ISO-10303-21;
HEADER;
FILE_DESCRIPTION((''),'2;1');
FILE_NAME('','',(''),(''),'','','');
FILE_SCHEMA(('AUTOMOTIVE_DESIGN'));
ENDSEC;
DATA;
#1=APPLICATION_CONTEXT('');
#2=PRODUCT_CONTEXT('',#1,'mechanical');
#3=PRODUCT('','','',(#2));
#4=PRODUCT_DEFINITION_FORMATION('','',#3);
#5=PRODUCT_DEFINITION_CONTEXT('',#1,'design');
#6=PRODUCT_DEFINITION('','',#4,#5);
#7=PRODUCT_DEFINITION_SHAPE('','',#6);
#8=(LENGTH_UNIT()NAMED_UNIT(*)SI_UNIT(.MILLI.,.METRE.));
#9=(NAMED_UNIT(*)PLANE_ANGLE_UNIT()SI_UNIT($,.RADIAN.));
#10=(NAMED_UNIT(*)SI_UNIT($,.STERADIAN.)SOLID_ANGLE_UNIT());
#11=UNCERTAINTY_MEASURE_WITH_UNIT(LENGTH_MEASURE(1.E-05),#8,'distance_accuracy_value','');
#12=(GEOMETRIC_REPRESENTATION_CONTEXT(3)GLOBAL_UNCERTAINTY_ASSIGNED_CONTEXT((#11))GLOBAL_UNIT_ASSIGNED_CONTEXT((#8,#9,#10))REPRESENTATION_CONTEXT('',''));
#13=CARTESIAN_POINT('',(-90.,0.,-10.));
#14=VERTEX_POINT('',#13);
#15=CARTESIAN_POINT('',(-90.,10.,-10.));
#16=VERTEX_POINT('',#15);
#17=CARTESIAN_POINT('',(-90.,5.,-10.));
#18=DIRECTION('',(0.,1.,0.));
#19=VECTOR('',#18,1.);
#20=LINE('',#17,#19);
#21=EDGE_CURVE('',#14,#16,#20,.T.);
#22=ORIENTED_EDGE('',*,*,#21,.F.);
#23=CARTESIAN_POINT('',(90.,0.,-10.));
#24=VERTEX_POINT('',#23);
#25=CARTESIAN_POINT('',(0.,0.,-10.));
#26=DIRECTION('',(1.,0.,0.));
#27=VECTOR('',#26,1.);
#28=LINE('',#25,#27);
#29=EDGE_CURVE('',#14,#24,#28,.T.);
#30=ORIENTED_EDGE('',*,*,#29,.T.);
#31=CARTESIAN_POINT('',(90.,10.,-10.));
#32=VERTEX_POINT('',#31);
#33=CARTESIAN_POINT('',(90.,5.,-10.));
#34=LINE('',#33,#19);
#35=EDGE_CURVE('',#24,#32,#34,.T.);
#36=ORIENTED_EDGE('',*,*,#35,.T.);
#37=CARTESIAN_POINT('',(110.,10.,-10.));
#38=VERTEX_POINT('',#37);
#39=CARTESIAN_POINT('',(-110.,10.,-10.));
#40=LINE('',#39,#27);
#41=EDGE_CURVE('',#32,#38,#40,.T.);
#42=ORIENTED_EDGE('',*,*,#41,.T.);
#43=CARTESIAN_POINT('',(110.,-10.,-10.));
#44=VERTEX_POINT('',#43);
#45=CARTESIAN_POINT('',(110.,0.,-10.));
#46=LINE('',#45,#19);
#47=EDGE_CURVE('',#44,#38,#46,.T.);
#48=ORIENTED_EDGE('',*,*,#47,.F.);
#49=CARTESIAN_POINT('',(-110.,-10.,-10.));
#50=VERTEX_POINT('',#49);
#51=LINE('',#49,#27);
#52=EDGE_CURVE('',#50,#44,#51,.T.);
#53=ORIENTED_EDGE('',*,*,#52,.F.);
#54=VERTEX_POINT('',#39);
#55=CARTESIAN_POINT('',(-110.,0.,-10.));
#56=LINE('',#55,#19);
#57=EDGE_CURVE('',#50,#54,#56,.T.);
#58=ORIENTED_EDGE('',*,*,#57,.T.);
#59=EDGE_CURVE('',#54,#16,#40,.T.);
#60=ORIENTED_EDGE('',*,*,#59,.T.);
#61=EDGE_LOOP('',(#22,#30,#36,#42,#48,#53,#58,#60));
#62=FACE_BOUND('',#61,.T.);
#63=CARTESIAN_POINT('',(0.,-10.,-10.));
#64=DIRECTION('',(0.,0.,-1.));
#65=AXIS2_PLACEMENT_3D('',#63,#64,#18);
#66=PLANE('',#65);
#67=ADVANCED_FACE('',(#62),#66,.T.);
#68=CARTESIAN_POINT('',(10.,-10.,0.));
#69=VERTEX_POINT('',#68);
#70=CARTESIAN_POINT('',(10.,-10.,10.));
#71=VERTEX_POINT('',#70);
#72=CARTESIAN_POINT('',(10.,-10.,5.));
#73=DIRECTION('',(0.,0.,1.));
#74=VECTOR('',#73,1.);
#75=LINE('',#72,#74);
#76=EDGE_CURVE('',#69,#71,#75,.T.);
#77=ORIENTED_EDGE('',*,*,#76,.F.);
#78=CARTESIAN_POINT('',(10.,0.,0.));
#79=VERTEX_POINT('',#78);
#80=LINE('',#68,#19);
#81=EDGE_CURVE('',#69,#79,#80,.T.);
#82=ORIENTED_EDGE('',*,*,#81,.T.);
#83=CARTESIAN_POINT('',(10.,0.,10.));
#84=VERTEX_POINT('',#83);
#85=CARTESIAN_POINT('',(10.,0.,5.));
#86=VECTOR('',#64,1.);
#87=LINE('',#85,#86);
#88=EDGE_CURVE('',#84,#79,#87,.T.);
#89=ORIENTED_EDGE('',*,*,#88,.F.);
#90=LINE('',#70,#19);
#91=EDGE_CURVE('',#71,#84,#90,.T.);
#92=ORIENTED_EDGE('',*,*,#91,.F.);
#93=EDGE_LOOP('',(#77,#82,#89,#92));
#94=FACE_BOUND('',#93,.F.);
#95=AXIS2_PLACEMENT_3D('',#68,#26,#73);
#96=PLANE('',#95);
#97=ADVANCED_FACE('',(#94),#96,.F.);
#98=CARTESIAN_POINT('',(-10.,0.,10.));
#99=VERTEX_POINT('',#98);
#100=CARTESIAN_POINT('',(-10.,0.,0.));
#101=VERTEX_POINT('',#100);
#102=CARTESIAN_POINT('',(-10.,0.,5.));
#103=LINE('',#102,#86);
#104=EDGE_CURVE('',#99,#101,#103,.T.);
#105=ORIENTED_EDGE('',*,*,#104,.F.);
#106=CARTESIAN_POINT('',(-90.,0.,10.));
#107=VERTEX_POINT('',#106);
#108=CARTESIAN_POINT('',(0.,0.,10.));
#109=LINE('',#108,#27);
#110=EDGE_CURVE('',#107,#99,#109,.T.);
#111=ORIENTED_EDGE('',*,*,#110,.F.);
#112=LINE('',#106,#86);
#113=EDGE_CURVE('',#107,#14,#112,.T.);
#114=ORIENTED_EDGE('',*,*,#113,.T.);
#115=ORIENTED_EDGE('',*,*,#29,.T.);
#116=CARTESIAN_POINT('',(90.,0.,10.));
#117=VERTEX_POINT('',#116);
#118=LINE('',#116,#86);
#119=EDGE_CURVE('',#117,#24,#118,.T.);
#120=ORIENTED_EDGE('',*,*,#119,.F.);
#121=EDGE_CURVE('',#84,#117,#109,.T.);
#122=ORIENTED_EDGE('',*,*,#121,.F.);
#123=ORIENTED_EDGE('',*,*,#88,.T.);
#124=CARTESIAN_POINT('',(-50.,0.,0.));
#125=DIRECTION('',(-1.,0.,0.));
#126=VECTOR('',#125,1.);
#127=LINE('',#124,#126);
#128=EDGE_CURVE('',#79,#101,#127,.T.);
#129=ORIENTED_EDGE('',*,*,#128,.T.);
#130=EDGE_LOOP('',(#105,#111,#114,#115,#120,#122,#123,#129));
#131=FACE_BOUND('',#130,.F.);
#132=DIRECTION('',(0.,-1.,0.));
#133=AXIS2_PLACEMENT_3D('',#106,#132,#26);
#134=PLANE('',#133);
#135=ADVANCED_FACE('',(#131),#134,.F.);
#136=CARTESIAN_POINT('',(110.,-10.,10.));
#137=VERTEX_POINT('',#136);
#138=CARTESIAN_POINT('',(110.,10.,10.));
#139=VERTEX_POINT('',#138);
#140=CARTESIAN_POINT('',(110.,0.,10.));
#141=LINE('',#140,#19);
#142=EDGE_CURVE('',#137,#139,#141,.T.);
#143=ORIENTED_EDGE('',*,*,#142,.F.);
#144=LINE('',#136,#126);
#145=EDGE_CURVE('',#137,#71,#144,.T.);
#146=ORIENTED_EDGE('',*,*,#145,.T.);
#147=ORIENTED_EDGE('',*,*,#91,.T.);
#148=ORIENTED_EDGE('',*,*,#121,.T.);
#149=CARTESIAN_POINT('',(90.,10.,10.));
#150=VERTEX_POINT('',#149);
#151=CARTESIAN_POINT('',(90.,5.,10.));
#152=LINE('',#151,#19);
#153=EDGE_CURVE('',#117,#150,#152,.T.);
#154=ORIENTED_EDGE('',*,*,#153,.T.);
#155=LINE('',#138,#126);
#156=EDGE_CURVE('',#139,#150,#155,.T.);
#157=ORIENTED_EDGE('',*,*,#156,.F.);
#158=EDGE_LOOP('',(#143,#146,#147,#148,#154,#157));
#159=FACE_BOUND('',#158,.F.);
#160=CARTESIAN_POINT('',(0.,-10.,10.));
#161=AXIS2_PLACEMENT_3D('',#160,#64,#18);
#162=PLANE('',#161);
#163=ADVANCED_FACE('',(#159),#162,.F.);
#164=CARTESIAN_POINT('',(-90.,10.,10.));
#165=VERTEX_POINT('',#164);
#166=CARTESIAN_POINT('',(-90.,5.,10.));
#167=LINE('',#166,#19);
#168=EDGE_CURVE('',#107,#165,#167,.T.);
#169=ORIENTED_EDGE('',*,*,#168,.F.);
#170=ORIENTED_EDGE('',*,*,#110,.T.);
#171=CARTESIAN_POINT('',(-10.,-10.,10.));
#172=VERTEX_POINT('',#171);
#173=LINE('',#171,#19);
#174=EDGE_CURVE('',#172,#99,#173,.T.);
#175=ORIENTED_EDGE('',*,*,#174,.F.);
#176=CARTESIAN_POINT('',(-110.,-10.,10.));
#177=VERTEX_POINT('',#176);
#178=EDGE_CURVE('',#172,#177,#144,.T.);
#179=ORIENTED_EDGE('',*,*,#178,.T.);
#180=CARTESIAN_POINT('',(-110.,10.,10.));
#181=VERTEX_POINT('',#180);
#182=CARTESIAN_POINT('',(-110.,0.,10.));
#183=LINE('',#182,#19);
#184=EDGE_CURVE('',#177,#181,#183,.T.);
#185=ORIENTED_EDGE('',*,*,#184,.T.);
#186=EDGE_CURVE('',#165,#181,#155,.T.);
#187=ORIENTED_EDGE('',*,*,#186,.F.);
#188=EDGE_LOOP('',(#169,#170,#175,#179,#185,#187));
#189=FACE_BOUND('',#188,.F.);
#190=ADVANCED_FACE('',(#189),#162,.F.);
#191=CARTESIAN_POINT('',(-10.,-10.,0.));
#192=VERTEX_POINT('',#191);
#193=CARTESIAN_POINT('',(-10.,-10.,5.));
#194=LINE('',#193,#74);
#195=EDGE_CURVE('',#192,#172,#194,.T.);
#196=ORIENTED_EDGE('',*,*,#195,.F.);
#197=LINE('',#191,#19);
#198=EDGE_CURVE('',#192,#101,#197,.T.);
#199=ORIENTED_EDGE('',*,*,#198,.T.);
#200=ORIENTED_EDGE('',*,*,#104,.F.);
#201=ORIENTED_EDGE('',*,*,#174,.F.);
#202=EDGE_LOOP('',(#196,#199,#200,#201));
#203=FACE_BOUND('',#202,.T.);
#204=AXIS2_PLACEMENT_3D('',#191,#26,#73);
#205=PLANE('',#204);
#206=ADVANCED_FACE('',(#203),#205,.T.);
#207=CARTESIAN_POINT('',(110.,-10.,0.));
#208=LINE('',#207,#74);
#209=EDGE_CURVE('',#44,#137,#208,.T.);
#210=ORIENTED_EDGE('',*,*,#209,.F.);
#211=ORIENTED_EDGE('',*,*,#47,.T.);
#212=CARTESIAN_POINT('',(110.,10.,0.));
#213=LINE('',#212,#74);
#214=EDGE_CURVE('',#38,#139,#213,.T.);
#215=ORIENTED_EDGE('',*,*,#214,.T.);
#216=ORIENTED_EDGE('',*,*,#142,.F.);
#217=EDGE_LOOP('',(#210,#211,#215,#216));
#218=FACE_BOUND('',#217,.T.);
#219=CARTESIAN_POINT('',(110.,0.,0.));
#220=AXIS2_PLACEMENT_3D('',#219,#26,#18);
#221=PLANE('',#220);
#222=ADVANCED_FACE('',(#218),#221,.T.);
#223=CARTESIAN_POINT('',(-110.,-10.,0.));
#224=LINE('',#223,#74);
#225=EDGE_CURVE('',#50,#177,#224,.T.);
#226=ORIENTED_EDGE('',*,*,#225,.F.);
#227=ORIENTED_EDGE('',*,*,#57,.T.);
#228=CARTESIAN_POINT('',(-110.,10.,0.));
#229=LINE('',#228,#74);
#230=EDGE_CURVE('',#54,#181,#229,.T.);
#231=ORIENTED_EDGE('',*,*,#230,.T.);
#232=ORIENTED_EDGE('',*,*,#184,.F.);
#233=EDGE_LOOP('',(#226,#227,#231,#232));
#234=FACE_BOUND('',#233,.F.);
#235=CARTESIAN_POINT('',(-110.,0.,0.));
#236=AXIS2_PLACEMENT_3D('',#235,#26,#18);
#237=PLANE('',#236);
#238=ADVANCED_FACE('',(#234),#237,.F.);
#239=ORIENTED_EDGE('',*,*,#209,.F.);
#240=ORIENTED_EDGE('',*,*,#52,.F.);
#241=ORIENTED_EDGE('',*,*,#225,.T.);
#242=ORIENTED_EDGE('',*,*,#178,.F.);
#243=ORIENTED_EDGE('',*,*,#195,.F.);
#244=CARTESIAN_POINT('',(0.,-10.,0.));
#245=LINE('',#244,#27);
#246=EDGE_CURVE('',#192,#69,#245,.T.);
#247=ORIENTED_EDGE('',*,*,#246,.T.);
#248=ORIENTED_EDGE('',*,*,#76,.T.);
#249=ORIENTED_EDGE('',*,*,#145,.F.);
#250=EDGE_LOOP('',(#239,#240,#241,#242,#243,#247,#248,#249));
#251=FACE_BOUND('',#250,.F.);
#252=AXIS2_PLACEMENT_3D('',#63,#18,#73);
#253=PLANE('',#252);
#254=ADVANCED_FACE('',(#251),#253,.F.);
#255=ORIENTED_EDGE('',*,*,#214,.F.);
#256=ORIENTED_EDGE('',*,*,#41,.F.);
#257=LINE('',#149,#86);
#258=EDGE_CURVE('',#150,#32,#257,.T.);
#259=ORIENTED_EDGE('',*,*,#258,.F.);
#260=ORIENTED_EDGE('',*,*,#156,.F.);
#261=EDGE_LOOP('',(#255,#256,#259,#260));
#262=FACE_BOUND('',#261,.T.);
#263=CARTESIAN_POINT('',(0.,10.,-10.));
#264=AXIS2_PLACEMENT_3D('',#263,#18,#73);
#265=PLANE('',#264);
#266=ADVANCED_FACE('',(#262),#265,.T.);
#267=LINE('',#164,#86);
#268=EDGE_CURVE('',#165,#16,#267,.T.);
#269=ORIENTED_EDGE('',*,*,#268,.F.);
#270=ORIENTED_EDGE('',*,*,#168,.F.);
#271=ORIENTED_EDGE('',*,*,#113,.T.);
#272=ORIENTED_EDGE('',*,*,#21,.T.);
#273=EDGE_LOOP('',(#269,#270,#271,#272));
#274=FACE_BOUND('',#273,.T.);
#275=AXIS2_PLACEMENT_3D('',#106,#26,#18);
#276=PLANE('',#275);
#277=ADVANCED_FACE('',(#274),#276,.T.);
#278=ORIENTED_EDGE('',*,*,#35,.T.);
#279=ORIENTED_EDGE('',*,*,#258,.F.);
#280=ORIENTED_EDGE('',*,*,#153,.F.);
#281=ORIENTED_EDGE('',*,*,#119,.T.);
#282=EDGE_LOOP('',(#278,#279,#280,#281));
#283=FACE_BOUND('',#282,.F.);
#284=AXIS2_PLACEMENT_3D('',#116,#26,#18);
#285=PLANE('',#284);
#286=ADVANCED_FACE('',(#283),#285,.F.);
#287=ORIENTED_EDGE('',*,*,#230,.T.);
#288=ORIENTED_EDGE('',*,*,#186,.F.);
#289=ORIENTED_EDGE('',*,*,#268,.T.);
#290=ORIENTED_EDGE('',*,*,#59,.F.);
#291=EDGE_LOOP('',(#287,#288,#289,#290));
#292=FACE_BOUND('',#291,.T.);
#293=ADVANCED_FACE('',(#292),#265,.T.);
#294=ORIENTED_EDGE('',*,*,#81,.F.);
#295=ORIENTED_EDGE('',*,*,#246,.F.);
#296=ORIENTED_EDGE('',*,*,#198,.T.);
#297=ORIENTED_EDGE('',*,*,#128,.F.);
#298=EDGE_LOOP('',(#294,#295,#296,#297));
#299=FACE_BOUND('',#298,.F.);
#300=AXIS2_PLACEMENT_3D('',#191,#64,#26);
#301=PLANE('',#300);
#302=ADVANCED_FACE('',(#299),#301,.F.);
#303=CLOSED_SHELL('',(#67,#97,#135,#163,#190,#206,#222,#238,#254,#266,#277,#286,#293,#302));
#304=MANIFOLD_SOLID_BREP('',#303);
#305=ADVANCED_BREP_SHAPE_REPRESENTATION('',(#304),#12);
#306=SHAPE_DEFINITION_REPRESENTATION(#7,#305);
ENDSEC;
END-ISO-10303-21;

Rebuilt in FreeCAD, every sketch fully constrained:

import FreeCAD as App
import Part
import Sketcher

doc = App.newDocument("Part")
params = doc.addObject("Spreadsheet::Sheet", "Params")
for row, (alias, value) in enumerate([
    ("sketch1_width", "20 mm"),
    ("pad1_length", "220 mm"),
    ("sketch2_width", "20 mm"),
    ("sketch2_height", "10 mm"),
    ("pocket1_length", "20 mm"),
    ("sketch3_width", "180 mm"),
    ("sketch3_height", "10 mm"),
    ("pocket2_length", "20 mm"),
], start=1):
    params.set(f"A{row}", alias)
    params.set(f"B{row}", "=" + value)
    params.setAlias(f"B{row}", alias)

body = doc.addObject("PartDesign::Body", "Body")

# Sketch on YZ plane
sketch1 = doc.addObject("Sketcher::SketchObject", "Sketch")
body.addObject(sketch1)
sketch1.AttachmentSupport = (doc.YZ_Plane, [""])
sketch1.MapMode = "FlatFace"
sketch1.addGeometry(Part.LineSegment(App.Vector(-10, 10, 0), App.Vector(-10, -10, 0)), False)
sketch1.addGeometry(Part.LineSegment(App.Vector(-10, -10, 0), App.Vector(10, -10, 0)), False)
sketch1.addGeometry(Part.LineSegment(App.Vector(10, -10, 0), App.Vector(10, 10, 0)), False)
sketch1.addGeometry(Part.LineSegment(App.Vector(10, 10, 0), App.Vector(-10, 10, 0)), False)
sketch1.addConstraint(Sketcher.Constraint("Coincident", 0, 2, 1, 1))
sketch1.addConstraint(Sketcher.Constraint("Coincident", 1, 2, 2, 1))
sketch1.addConstraint(Sketcher.Constraint("Coincident", 2, 2, 3, 1))
sketch1.addConstraint(Sketcher.Constraint("Coincident", 3, 2, 0, 1))
sketch1.addConstraint(Sketcher.Constraint("Vertical", 0))
sketch1.addConstraint(Sketcher.Constraint("Horizontal", 1))
sketch1.addConstraint(Sketcher.Constraint("Vertical", 2))
sketch1.addConstraint(Sketcher.Constraint("Horizontal", 3))
sketch1.addConstraint(Sketcher.Constraint("Symmetric", 0, 2, 2, 2, -1, 1))
sketch1.addConstraint(Sketcher.Constraint("Equal", 3, 0))
sketch1.addConstraint(Sketcher.Constraint("DistanceX", 1, 1, 1, 2, 20.0))
sketch1.setExpression("Constraints[10]", "Params.sketch1_width")
pad1 = doc.addObject("PartDesign::Pad", "Pad")
body.addObject(pad1)
pad1.Profile = sketch1
pad1.setExpression("Length", "Params.pad1_length")
pad1.Midplane = True

# Sketch on XZ plane
sketch2 = doc.addObject("Sketcher::SketchObject", "Sketch001")
body.addObject(sketch2)
sketch2.AttachmentSupport = (doc.XZ_Plane, [""])
sketch2.MapMode = "FlatFace"
sketch2.AttachmentOffset = App.Placement(App.Vector(0, 0, 10), App.Rotation())
sketch2.addGeometry(Part.LineSegment(App.Vector(-10, 10, 0), App.Vector(-10, 0, 0)), False)
sketch2.addGeometry(Part.LineSegment(App.Vector(-10, 0, 0), App.Vector(10, 0, 0)), False)
sketch2.addGeometry(Part.LineSegment(App.Vector(10, 0, 0), App.Vector(10, 10, 0)), False)
sketch2.addGeometry(Part.LineSegment(App.Vector(10, 10, 0), App.Vector(-10, 10, 0)), False)
sketch2.addConstraint(Sketcher.Constraint("Coincident", 0, 2, 1, 1))
sketch2.addConstraint(Sketcher.Constraint("Coincident", 1, 2, 2, 1))
sketch2.addConstraint(Sketcher.Constraint("Coincident", 2, 2, 3, 1))
sketch2.addConstraint(Sketcher.Constraint("Coincident", 3, 2, 0, 1))
sketch2.addConstraint(Sketcher.Constraint("Vertical", 0))
sketch2.addConstraint(Sketcher.Constraint("Horizontal", 1))
sketch2.addConstraint(Sketcher.Constraint("Vertical", 2))
sketch2.addConstraint(Sketcher.Constraint("Horizontal", 3))
sketch2.addConstraint(Sketcher.Constraint("Symmetric", 0, 2, 1, 2, -1, 1))
sketch2.addConstraint(Sketcher.Constraint("DistanceX", 1, 1, 1, 2, 20.0))
sketch2.addConstraint(Sketcher.Constraint("DistanceY", 0, 2, 0, 1, 10.0))
sketch2.setExpression("Constraints[9]", "Params.sketch2_width")
sketch2.setExpression("Constraints[10]", "Params.sketch2_height")
pocket1 = doc.addObject("PartDesign::Pocket", "Pocket")
body.addObject(pocket1)
pocket1.Profile = sketch2
pocket1.setExpression("Length", "Params.pocket1_length")

# Sketch on XY plane
sketch3 = doc.addObject("Sketcher::SketchObject", "Sketch002")
body.addObject(sketch3)
sketch3.AttachmentSupport = (doc.XY_Plane, [""])
sketch3.MapMode = "FlatFace"
sketch3.AttachmentOffset = App.Placement(App.Vector(0, 0, 10), App.Rotation())
sketch3.addGeometry(Part.LineSegment(App.Vector(-90, 10, 0), App.Vector(-90, 0, 0)), False)
sketch3.addGeometry(Part.LineSegment(App.Vector(-90, 0, 0), App.Vector(90, 0, 0)), False)
sketch3.addGeometry(Part.LineSegment(App.Vector(90, 0, 0), App.Vector(90, 10, 0)), False)
sketch3.addGeometry(Part.LineSegment(App.Vector(90, 10, 0), App.Vector(-90, 10, 0)), False)
sketch3.addConstraint(Sketcher.Constraint("Coincident", 0, 2, 1, 1))
sketch3.addConstraint(Sketcher.Constraint("Coincident", 1, 2, 2, 1))
sketch3.addConstraint(Sketcher.Constraint("Coincident", 2, 2, 3, 1))
sketch3.addConstraint(Sketcher.Constraint("Coincident", 3, 2, 0, 1))
sketch3.addConstraint(Sketcher.Constraint("Vertical", 0))
sketch3.addConstraint(Sketcher.Constraint("Horizontal", 1))
sketch3.addConstraint(Sketcher.Constraint("Vertical", 2))
sketch3.addConstraint(Sketcher.Constraint("Horizontal", 3))
sketch3.addConstraint(Sketcher.Constraint("Symmetric", 0, 2, 1, 2, -1, 1))
sketch3.addConstraint(Sketcher.Constraint("DistanceX", 1, 1, 1, 2, 180.0))
sketch3.addConstraint(Sketcher.Constraint("DistanceY", 0, 2, 0, 1, 10.0))
sketch3.setExpression("Constraints[9]", "Params.sketch3_width")
sketch3.setExpression("Constraints[10]", "Params.sketch3_height")
pocket2 = doc.addObject("PartDesign::Pocket", "Pocket001")
body.addObject(pocket2)
pocket2.Profile = sketch3
pocket2.setExpression("Length", "Params.pocket2_length")

doc.recompute()
